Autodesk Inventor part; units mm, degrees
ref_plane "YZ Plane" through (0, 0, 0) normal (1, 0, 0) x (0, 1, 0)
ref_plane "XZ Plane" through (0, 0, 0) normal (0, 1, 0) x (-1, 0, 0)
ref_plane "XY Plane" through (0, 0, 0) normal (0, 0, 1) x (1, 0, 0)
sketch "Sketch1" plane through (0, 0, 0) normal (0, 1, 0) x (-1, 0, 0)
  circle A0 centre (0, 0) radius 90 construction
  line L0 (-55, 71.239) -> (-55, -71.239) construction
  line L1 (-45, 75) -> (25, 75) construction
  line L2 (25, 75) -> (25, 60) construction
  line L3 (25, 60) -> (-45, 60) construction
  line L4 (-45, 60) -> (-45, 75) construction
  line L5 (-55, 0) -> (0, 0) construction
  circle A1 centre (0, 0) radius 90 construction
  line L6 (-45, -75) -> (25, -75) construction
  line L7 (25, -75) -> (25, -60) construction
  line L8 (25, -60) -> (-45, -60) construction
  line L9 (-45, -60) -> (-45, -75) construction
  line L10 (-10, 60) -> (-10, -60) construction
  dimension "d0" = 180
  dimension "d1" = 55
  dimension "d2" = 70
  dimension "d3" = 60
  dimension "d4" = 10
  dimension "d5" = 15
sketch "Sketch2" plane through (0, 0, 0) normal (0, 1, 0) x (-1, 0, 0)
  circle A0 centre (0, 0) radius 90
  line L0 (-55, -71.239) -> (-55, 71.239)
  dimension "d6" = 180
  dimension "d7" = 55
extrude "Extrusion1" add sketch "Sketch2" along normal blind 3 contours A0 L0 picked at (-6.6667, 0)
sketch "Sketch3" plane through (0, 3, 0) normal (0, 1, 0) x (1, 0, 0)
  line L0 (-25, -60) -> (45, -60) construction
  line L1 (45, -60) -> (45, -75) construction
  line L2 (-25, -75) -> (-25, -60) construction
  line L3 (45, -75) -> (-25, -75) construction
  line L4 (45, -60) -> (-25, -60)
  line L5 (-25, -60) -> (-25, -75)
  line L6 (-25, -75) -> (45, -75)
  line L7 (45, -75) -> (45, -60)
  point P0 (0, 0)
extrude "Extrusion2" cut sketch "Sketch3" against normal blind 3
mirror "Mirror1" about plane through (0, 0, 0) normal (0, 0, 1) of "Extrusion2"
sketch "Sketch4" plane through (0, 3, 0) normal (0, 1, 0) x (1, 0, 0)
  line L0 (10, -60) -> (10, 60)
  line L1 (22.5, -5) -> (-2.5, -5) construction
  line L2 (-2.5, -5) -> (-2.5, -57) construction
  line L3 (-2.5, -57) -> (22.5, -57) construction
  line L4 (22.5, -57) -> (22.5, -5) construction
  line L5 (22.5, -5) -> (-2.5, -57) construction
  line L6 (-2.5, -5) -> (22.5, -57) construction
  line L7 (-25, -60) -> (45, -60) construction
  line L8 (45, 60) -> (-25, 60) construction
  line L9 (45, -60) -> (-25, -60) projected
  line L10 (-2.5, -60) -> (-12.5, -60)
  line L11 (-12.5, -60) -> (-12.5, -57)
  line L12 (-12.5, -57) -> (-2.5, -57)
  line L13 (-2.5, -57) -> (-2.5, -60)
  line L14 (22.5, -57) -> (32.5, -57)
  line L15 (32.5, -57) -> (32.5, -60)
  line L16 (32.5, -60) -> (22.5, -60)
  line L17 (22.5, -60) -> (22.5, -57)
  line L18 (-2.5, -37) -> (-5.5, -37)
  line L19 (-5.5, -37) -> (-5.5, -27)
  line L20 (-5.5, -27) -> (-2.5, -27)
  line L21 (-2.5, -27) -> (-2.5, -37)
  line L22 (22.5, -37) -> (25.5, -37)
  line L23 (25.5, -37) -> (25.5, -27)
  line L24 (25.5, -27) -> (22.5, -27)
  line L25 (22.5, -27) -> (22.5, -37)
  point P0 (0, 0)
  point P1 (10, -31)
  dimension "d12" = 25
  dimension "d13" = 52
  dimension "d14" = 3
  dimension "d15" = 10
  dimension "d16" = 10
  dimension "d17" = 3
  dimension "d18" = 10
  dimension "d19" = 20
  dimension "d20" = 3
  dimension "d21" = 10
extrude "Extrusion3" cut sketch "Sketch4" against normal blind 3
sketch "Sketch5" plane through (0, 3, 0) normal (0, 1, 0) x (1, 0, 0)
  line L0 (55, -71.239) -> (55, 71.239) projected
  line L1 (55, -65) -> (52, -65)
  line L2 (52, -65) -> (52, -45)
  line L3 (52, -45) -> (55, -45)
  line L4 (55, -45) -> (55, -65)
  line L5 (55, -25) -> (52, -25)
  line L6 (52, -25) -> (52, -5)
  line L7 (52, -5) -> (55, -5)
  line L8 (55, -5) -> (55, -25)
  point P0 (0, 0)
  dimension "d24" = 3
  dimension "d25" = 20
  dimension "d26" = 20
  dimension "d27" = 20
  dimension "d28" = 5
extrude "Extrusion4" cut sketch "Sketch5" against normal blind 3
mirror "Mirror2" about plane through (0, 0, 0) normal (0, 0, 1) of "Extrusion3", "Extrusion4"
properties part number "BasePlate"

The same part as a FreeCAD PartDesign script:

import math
import FreeCAD as App
import Part
import Sketcher

V = App.Vector
Q = App.Units.Quantity


def add_polygon(sketch, points):
    """Adds a closed chain of lines whose ends are joined by coincident constraints."""
    first, n = sketch.GeometryCount, len(points)
    for a, b in zip(points, points[1:] + points[:1]):
        sketch.addGeometry(Part.LineSegment(App.Vector(*a, 0), App.Vector(*b, 0)), False)
    for i in range(n):
        sketch.addConstraint(Sketcher.Constraint("Coincident", first + i, 2, first + (i + 1) % n, 1))

doc = App.newDocument("Part")
params = doc.addObject("Spreadsheet::Sheet", "Params")
for row, (alias, value) in enumerate([
    ("sketch1_radius", "90 mm"),
    ("pad1_length", "3 mm"),
    ("sketch2_width", "70 mm"),
    ("sketch2_height", "15 mm"),
    ("pocket1_length", "3 mm"),
    ("sketch3_width", "10 mm"),
    ("sketch3_width2", "3 mm"),
    ("pocket2_length", "3 mm"),
    ("sketch4_width", "3 mm"),
    ("sketch4_height", "20 mm"),
    ("pocket3_length", "3 mm"),
], start=1):
    params.set(f"A{row}", alias)
    params.set(f"B{row}", "=" + value)
    params.setAlias(f"B{row}", alias)

body = doc.addObject("PartDesign::Body", "Body")

sketch1 = body.newObject("Sketcher::SketchObject", "Sketch")
sketch1.AttachmentSupport = (doc.getObject("XZ_Plane"), [""])
sketch1.MapMode = "FlatFace"
sketch1.addGeometry([
    Part.ArcOfCircle(Part.Circle(V(0, 0, 0), V(0, 0, 1), 90), math.radians(52), math.radians(308)),
    Part.LineSegment(V(55, -71, 0), V(55, 71, 0)),
], False)
sketch1.addConstraint([
    Sketcher.Constraint("Coincident", 0, 1, 1, 2),
    Sketcher.Constraint("Coincident", 1, 1, 0, 2),
    Sketcher.Constraint("Vertical", 1),
    Sketcher.Constraint("Coincident", 0, 3, -1, 1),
    Sketcher.Constraint("Radius", 0, Q("90 mm")),
    Sketcher.Constraint("DistanceX", -1, 1, 0, 1, Q("55 mm")),
])
sketch1.setExpression("Constraints[4]", "Params.sketch1_radius")
pad1 = body.newObject("PartDesign::Pad", "Pad")
pad1.Profile = sketch1
pad1.setExpression("Length", "Params.pad1_length")
pad1.Reversed = True

sketch2 = body.newObject("Sketcher::SketchObject", "Sketch001")
sketch2.AttachmentSupport = (doc.getObject("XZ_Plane"), [""])
sketch2.MapMode = "FlatFace"
sketch2.AttachmentOffset = App.Placement(V(0, 0, -3), App.Rotation())
add_polygon(sketch2, [(45, 75), (45, 60), (-25, 60), (-25, 75)])
sketch2.addConstraint([
    Sketcher.Constraint("Vertical", 0),
    Sketcher.Constraint("Horizontal", 1),
    Sketcher.Constraint("Vertical", 2),
    Sketcher.Constraint("Horizontal", 3),
    Sketcher.Constraint("DistanceX", 1, 2, 1, 1, Q("70 mm")),
    Sketcher.Constraint("DistanceY", 0, 2, 0, 1, Q("15 mm")),
    Sketcher.Constraint("DistanceX", -1, 1, 0, 2, Q("45 mm")),
    Sketcher.Constraint("DistanceY", -1, 1, 0, 2, Q("60 mm")),
])
sketch2.setExpression("Constraints[8]", "Params.sketch2_width")
sketch2.setExpression("Constraints[9]", "Params.sketch2_height")
pocket1 = body.newObject("PartDesign::Pocket", "Pocket")
pocket1.Profile = sketch2
pocket1.setExpression("Length", "Params.pocket1_length")
pocket1.Reversed = True
doc.recompute()

mirrored = body.newObject("PartDesign::Mirrored", "Mirrored")
mirrored.Originals = [pocket1]
mirrored.MirrorPlane = (doc.getObject("XY_Plane"), [""])
body.Tip = mirrored

sketch3 = body.newObject("Sketcher::SketchObject", "Sketch002")
sketch3.AttachmentSupport = (doc.getObject("XZ_Plane"), [""])
sketch3.MapMode = "FlatFace"
sketch3.AttachmentOffset = App.Placement(V(0, 0, -3), App.Rotation())
add_polygon(sketch3, [(-12.5, 60), (-2.5, 60), (-2.5, 57), (-12.5, 57)])
add_polygon(sketch3, [(22.5, 60), (32.5, 60), (32.5, 57), (22.5, 57)])
add_polygon(sketch3, [(-5.5, 37), (-2.5, 37), (-2.5, 27), (-5.5, 27)])
add_polygon(sketch3, [(22.5, 27), (22.5, 37), (25.5, 37), (25.5, 27)])
sketch3.addConstraint([
    Sketcher.Constraint("Horizontal", 0),
    Sketcher.Constraint("Vertical", 1),
    Sketcher.Constraint("Horizontal", 2),
    Sketcher.Constraint("Vertical", 3),
    Sketcher.Constraint("Horizontal", 4),
    Sketcher.Constraint("Vertical", 5),
    Sketcher.Constraint("Horizontal", 6),
    Sketcher.Constraint("Vertical", 7),
    Sketcher.Constraint("Horizontal", 8),
    Sketcher.Constraint("Vertical", 9),
    Sketcher.Constraint("Horizontal", 10),
    Sketcher.Constraint("Vertical", 11),
    Sketcher.Constraint("Vertical", 12),
    Sketcher.Constraint("Horizontal", 13),
    Sketcher.Constraint("Vertical", 14),
    Sketcher.Constraint("Horizontal", 15),
    Sketcher.Constraint("Horizontal", 3, 2, 4, 2),
    Sketcher.Constraint("Horizontal", 2, 2, 5, 2),
    Sketcher.Constraint("Horizontal", 11, 2, 12, 2),
    Sketcher.Constraint("Horizontal", 10, 2, 14, 2),
    Sketcher.Constraint("Vertical", 1, 2, 8, 2),
    Sketcher.Constraint("Vertical", 7, 2, 12, 2),
    Sketcher.Constraint("Equal", 2, 4),
    Sketcher.Constraint("Equal", 10, 13),
    Sketcher.Constraint("Equal", 15, 1),
    Sketcher.Constraint("Equal", 6, 9),
    Sketcher.Constraint("DistanceX", 0, 1, 0, 2, Q("10 mm")),
    Sketcher.Constraint("DistanceX", 8, 1, 8, 2, Q("3 mm")),
    Sketcher.Constraint("DistanceX", 1, 2, 6, 2, Q("25 mm")),
    Sketcher.Constraint("DistanceY", 8, 2, 1, 2, Q("20 mm")),
    Sketcher.Constraint("DistanceY", -1, 1, 0, 2, Q("60 mm")),
    Sketcher.Constraint("DistanceX", 0, 2, -1, 1, Q("2.5 mm")),
])
sketch3.setExpression("Constraints[42]", "Params.sketch3_width")
sketch3.setExpression("Constraints[43]", "Params.sketch3_width2")
pocket2 = body.newObject("PartDesign::Pocket", "Pocket001")
pocket2.Profile = sketch3
pocket2.setExpression("Length", "Params.pocket2_length")
pocket2.Reversed = True

sketch4 = body.newObject("Sketcher::SketchObject", "Sketch003")
sketch4.AttachmentSupport = (doc.getObject("XZ_Plane"), [""])
sketch4.MapMode = "FlatFace"
sketch4.AttachmentOffset = App.Placement(V(0, 0, -3), App.Rotation())
add_polygon(sketch4, [(52, 65), (55, 65), (55, 45), (52, 45)])
add_polygon(sketch4, [(52, 25), (55, 25), (55, 5), (52, 5)])
sketch4.addConstraint([
    Sketcher.Constraint("Horizontal", 0),
    Sketcher.Constraint("Vertical", 1),
    Sketcher.Constraint("Horizontal", 2),
    Sketcher.Constraint("Vertical", 3),
    Sketcher.Constraint("Horizontal", 4),
    Sketcher.Constraint("Vertical", 5),
    Sketcher.Constraint("Horizontal", 6),
    Sketcher.Constraint("Vertical", 7),
    Sketcher.Constraint("Vertical", 1, 2, 4, 2),
    Sketcher.Constraint("Vertical", 3, 2, 6, 2),
    Sketcher.Constraint("Equal", 3, 5),
    Sketcher.Constraint("DistanceX", 0, 1, 0, 2, Q("3 mm")),
    Sketcher.Constraint("DistanceY", 1, 2, 1, 1, Q("20 mm")),
    Sketcher.Constraint("DistanceY", -1, 1, 5, 2, Q("5 mm")),
    Sketcher.Constraint("DistanceY", 4, 2, 1, 2, Q("20 mm")),
    Sketcher.Constraint("DistanceX", -1, 1, 0, 2, Q("55 mm")),
])
sketch4.setExpression("Constraints[19]", "Params.sketch4_width")
sketch4.setExpression("Constraints[20]", "Params.sketch4_height")
pocket3 = body.newObject("PartDesign::Pocket", "Pocket002")
pocket3.Profile = sketch4
pocket3.setExpression("Length", "Params.pocket3_length")
pocket3.Reversed = True
doc.recompute()

mirrored2 = body.newObject("PartDesign::Mirrored", "Mirrored001")
mirrored2.Originals = [pocket2, pocket3]
mirrored2.MirrorPlane = (doc.getObject("XY_Plane"), [""])
body.Tip = mirrored2

doc.recompute()
